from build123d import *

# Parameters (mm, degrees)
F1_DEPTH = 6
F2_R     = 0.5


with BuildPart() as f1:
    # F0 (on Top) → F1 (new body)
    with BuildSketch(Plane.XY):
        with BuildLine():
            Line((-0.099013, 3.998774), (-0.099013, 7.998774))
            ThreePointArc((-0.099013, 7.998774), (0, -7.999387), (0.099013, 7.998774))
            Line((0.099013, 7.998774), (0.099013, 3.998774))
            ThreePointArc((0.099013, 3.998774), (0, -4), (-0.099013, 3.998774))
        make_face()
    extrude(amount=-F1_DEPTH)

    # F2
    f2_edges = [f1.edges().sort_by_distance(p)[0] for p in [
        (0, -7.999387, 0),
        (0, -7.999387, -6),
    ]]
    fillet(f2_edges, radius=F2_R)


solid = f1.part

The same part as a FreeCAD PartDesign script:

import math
import FreeCAD as App
import Part
import Sketcher

V = App.Vector


def edges_at(feature, points):
    """Names of the edges that pass closest to the given points."""
    edges = feature.Shape.Edges
    near = lambda p: min(range(len(edges)), key=lambda i: edges[i].distToShape(Part.Vertex(*p))[0])
    return sorted({f"Edge{near(p) + 1}" for p in points})

doc = App.newDocument("Part")
params = doc.addObject("Spreadsheet::Sheet", "Params")
for row, (alias, value) in enumerate([
    ("sketch1_radius", "4 mm"),
    ("sketch1_height", "4 mm"),
    ("pad1_length", "6 mm"),
    ("fillet_radius", "0.5 mm"),
], start=1):
    params.set(f"A{row}", alias)
    params.set(f"B{row}", "=" + value)
    params.setAlias(f"B{row}", alias)

body = doc.addObject("PartDesign::Body", "Body")

sketch1 = body.newObject("Sketcher::SketchObject", "Sketch")
sketch1.AttachmentSupport = (doc.getObject("XY_Plane"), [""])
sketch1.MapMode = "FlatFace"
sketch1.addGeometry(Part.LineSegment(V(-0.1, 4, 0), V(-0.1, 8, 0)), False)
sketch1.addGeometry(Part.ArcOfCircle(Part.Circle(V(0, 0, 0), V(0, 0, 1), 8), math.radians(91), math.radians(449)), False)
sketch1.addGeometry(Part.LineSegment(V(0.1, 8, 0), V(0.1, 4, 0)), False)
sketch1.addGeometry(Part.ArcOfCircle(Part.Circle(V(0, 0, 0), V(0, 0, 1), 4), math.radians(91), math.radians(449)), False)
sketch1.addConstraint(Sketcher.Constraint("Coincident", 0, 2, 1, 1))
sketch1.addConstraint(Sketcher.Constraint("Coincident", 1, 2, 2, 1))
sketch1.addConstraint(Sketcher.Constraint("Coincident", 2, 2, 3, 2))
sketch1.addConstraint(Sketcher.Constraint("Coincident", 3, 1, 0, 1))
sketch1.addConstraint(Sketcher.Constraint("Vertical", 0))
sketch1.addConstraint(Sketcher.Constraint("Vertical", 2))
sketch1.addConstraint(Sketcher.Constraint("Coincident", 1, 3, -1, 1))
sketch1.addConstraint(Sketcher.Constraint("Coincident", 3, 3, -1, 1))
sketch1.addConstraint(Sketcher.Constraint("Horizontal", 0, 2, 1, 2))
sketch1.addConstraint(Sketcher.Constraint("Radius", 3, 4.0))
sketch1.addConstraint(Sketcher.Constraint("DistanceY", 0, 1, 0, 2, 4.0))
sketch1.addConstraint(Sketcher.Constraint("Radius", 1, 7.999387))
sketch1.setExpression("Constraints[9]", "Params.sketch1_radius")
sketch1.setExpression("Constraints[10]", "Params.sketch1_height")
pad1 = body.newObject("PartDesign::Pad", "Pad")
pad1.Profile = sketch1
pad1.setExpression("Length", "Params.pad1_length")
pad1.Reversed = True
doc.recompute()

fillet = body.newObject("PartDesign::Fillet", "Fillet")
fillet.Base = (pad1, edges_at(pad1, [(0, -7.999, 0), (0, -7.999, -6)]))
fillet.setExpression("Radius", "Params.fillet_radius")

doc.recompute()
